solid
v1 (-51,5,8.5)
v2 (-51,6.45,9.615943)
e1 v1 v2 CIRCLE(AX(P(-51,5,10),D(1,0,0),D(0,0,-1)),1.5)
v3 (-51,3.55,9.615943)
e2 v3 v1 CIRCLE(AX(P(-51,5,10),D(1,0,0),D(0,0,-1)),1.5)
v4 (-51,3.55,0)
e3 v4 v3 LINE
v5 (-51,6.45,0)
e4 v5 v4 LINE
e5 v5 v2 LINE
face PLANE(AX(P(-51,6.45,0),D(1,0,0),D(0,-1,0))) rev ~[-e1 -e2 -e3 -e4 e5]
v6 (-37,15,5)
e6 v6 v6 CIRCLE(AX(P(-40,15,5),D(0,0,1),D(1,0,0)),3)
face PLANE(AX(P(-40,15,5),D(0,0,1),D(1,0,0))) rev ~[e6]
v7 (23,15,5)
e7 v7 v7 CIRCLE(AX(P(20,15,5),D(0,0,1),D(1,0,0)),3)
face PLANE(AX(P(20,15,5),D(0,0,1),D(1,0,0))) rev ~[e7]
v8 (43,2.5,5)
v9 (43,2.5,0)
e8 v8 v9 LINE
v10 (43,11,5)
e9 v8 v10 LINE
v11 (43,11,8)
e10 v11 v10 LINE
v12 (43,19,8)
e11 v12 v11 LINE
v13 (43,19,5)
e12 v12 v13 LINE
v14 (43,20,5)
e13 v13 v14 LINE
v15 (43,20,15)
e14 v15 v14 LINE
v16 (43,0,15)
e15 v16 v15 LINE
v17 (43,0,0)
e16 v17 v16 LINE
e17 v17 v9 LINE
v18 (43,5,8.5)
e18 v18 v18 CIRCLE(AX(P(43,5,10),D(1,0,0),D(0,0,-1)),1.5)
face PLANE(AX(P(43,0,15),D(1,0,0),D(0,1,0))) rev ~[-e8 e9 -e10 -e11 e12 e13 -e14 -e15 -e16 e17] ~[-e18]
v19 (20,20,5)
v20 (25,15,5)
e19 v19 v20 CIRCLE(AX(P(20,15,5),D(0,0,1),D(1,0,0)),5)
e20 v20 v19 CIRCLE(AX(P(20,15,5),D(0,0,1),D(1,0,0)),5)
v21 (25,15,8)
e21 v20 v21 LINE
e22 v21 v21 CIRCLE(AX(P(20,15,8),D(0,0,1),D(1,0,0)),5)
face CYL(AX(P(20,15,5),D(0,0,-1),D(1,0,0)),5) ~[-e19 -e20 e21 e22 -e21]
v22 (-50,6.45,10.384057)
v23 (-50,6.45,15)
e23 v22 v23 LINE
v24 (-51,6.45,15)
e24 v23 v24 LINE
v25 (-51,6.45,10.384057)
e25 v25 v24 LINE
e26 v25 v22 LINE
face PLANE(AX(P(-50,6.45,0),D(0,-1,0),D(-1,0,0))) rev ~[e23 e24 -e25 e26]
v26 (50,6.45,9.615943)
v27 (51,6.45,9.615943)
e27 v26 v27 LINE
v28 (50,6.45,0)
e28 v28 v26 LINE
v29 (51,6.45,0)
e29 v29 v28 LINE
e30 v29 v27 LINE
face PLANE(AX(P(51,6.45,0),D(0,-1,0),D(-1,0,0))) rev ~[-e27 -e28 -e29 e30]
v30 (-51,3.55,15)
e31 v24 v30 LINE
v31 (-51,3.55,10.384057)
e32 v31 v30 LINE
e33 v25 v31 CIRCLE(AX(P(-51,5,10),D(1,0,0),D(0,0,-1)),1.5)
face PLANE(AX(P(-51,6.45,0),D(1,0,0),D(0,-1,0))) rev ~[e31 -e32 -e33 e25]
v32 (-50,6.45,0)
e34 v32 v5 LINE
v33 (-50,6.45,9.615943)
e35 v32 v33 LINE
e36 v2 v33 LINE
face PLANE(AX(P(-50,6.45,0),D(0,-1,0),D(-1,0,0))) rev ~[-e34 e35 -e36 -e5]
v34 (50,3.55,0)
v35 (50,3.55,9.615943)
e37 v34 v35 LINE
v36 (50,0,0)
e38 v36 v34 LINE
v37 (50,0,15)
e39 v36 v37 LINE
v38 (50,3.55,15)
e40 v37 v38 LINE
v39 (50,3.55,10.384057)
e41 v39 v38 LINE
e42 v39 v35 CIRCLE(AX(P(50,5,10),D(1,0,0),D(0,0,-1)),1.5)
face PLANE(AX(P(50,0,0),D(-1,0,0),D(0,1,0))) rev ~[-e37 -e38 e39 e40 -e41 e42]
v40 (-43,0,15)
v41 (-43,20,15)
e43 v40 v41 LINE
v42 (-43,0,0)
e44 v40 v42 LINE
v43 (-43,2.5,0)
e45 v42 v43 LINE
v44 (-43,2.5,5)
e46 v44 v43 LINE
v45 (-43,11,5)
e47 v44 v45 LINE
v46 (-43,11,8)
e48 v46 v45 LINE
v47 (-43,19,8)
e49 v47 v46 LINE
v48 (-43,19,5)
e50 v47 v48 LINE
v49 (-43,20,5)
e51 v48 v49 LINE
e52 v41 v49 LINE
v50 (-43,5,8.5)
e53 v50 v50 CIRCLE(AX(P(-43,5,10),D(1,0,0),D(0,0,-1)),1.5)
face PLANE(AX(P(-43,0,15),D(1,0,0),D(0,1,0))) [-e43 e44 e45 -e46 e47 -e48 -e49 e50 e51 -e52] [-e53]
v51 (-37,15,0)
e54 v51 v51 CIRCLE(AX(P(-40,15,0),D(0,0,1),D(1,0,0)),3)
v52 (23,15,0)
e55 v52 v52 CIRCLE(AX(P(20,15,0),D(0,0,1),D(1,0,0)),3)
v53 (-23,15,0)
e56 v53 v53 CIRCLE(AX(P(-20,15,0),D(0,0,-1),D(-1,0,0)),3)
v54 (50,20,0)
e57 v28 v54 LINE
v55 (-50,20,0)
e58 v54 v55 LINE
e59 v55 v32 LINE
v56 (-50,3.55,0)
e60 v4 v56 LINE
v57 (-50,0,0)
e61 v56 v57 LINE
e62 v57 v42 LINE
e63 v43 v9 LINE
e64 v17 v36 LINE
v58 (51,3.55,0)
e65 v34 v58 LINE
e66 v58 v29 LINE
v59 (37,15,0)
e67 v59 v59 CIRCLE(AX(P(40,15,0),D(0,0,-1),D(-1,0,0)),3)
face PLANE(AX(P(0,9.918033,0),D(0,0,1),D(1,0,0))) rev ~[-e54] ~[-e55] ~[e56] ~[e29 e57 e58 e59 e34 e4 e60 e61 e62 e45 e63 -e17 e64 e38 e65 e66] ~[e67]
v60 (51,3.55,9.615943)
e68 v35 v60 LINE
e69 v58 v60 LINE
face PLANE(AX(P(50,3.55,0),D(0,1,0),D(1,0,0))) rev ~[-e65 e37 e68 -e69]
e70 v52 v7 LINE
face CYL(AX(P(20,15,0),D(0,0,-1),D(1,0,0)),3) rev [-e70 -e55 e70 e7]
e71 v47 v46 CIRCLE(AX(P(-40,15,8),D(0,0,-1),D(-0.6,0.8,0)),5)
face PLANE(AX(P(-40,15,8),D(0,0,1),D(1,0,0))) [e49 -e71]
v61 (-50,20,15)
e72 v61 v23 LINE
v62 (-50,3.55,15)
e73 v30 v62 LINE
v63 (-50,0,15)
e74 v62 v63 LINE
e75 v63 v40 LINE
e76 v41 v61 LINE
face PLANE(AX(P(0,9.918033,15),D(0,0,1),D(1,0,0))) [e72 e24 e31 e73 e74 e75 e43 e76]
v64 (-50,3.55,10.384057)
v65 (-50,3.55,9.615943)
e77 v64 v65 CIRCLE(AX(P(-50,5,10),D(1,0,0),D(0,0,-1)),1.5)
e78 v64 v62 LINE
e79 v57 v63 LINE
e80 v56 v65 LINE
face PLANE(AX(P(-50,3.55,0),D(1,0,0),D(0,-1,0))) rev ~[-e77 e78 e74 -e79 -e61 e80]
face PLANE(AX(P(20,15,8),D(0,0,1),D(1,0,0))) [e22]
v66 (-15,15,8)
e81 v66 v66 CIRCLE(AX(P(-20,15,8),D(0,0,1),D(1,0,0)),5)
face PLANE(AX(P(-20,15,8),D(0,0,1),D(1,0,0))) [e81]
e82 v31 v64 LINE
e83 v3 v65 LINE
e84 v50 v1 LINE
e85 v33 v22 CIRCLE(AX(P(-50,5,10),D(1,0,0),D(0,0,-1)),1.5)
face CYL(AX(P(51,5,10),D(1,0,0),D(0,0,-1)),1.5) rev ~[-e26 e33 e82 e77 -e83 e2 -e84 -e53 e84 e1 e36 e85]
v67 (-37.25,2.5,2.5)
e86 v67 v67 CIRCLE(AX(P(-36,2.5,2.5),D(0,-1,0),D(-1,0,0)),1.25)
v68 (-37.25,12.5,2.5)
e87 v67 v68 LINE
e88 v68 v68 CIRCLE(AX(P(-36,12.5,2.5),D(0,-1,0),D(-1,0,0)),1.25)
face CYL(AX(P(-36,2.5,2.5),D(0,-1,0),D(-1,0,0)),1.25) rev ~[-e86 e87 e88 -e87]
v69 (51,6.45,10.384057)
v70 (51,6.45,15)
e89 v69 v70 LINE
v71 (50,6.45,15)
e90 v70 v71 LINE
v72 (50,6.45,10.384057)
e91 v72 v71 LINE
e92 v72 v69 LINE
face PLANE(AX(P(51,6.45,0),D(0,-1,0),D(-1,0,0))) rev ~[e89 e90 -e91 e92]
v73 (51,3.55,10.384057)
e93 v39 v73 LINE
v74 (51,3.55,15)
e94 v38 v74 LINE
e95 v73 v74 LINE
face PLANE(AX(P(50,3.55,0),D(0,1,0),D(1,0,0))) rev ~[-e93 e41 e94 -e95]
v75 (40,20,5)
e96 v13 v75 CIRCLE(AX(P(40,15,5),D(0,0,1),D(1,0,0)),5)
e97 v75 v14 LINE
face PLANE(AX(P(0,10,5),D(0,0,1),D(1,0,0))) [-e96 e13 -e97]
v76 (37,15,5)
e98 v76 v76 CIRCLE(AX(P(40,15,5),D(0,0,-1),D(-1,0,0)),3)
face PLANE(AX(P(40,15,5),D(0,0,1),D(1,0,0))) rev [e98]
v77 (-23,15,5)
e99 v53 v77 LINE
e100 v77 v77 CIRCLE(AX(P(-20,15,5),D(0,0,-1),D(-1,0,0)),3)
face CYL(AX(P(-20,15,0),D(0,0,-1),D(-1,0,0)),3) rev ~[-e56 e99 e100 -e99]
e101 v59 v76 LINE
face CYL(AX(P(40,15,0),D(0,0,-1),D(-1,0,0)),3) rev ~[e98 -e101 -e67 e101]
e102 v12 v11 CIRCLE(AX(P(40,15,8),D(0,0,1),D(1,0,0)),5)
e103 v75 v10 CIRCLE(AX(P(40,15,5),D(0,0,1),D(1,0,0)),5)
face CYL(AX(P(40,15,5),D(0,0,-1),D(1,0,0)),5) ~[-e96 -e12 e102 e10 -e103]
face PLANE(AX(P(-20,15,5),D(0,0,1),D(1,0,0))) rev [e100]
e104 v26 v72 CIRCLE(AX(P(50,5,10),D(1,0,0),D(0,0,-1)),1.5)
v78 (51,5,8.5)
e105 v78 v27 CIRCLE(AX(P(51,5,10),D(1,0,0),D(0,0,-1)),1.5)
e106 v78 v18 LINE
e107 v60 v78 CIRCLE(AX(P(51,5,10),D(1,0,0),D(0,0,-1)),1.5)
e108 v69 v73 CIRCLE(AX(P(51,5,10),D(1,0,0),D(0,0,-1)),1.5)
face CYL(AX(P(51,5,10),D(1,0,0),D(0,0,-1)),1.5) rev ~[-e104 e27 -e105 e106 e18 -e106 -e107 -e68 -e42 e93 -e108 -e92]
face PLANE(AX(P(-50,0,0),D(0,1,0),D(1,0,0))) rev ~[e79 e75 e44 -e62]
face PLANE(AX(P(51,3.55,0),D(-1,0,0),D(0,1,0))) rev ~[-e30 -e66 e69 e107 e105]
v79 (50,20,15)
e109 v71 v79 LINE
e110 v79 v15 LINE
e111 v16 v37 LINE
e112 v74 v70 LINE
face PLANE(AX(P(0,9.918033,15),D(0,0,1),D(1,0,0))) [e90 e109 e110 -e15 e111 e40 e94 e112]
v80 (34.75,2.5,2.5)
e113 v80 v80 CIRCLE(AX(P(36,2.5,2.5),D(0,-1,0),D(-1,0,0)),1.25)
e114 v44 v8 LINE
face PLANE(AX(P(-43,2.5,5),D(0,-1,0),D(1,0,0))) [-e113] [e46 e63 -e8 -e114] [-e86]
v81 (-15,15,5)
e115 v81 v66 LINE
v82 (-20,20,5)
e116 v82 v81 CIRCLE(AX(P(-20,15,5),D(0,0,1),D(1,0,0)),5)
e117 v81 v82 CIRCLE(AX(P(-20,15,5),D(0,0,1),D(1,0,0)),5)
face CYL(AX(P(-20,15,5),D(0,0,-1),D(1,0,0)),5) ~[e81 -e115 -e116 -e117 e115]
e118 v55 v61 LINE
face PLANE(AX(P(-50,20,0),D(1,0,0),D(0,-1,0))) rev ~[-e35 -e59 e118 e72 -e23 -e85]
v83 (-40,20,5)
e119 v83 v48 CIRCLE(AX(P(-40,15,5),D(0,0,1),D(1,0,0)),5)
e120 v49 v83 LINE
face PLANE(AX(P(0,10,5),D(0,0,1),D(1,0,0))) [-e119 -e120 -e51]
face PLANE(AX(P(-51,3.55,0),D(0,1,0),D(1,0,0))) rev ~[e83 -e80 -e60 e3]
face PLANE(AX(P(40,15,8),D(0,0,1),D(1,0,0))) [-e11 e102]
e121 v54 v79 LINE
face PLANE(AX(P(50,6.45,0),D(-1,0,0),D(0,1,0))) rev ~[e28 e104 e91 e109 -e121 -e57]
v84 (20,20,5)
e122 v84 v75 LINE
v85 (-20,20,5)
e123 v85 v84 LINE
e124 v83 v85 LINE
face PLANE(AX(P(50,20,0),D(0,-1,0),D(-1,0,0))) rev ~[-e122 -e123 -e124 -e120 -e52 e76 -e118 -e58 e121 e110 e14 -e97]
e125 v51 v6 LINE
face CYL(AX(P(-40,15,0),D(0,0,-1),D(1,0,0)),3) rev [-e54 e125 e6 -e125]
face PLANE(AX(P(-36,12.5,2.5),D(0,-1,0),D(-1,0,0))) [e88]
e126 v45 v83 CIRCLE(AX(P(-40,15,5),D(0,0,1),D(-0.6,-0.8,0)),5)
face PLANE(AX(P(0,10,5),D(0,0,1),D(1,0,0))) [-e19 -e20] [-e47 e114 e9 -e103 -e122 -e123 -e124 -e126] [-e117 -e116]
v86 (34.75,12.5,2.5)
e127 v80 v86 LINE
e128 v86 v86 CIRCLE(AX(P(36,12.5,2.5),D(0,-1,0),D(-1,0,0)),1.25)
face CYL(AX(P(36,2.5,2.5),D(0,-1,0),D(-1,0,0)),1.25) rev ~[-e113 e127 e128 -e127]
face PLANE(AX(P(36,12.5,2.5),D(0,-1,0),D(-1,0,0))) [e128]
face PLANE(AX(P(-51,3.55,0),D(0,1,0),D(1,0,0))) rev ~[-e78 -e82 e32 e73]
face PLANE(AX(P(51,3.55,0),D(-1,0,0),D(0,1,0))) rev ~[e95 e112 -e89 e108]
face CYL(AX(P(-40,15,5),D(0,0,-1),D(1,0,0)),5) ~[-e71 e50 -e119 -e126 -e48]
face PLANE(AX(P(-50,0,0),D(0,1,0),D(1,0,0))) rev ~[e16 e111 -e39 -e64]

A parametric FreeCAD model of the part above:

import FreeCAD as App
import Part
import Sketcher
from FreeCAD import Vector

doc = App.newDocument("Part")
body = doc.addObject("PartDesign::Body", "Body")

# Sketch on XY plane
sketch1 = body.newObject("Sketcher::SketchObject", "Sketch")
sketch1.AttachmentSupport = (doc.getObject("XY_Plane"), [""])
sketch1.MapMode = "FlatFace"
sketch1.addGeometry(Part.LineSegment(Vector(-50, 0, 0), Vector(50, 0, 0)), False)
sketch1.addGeometry(Part.LineSegment(Vector(50, 0, 0), Vector(50, 3.55, 0)), False)
sketch1.addGeometry(Part.LineSegment(Vector(50, 3.55, 0), Vector(51, 3.55, 0)), False)
sketch1.addGeometry(Part.LineSegment(Vector(51, 3.55, 0), Vector(51, 6.45, 0)), False)
sketch1.addGeometry(Part.LineSegment(Vector(51, 6.45, 0), Vector(50, 6.45, 0)), False)
sketch1.addGeometry(Part.LineSegment(Vector(50, 6.45, 0), Vector(50, 20, 0)), False)
sketch1.addGeometry(Part.LineSegment(Vector(50, 20, 0), Vector(-50, 20, 0)), False)
sketch1.addGeometry(Part.LineSegment(Vector(-50, 20, 0), Vector(-50, 6.45, 0)), False)
sketch1.addGeometry(Part.LineSegment(Vector(-50, 6.45, 0), Vector(-51, 6.45, 0)), False)
sketch1.addGeometry(Part.LineSegment(Vector(-51, 6.45, 0), Vector(-51, 3.55, 0)), False)
sketch1.addGeometry(Part.LineSegment(Vector(-51, 3.55, 0), Vector(-50, 3.55, 0)), False)
sketch1.addGeometry(Part.LineSegment(Vector(-50, 3.55, 0), Vector(-50, 0, 0)), False)
sketch1.addConstraint(Sketcher.Constraint("Coincident", 0, 2, 1, 1))
sketch1.addConstraint(Sketcher.Constraint("Coincident", 1, 2, 2, 1))
sketch1.addConstraint(Sketcher.Constraint("Coincident", 2, 2, 3, 1))
sketch1.addConstraint(Sketcher.Constraint("Coincident", 3, 2, 4, 1))
sketch1.addConstraint(Sketcher.Constraint("Coincident", 4, 2, 5, 1))
sketch1.addConstraint(Sketcher.Constraint("Coincident", 5, 2, 6, 1))
sketch1.addConstraint(Sketcher.Constraint("Coincident", 6, 2, 7, 1))
sketch1.addConstraint(Sketcher.Constraint("Coincident", 7, 2, 8, 1))
sketch1.addConstraint(Sketcher.Constraint("Coincident", 8, 2, 9, 1))
sketch1.addConstraint(Sketcher.Constraint("Coincident", 9, 2, 10, 1))
sketch1.addConstraint(Sketcher.Constraint("Coincident", 10, 2, 11, 1))
sketch1.addConstraint(Sketcher.Constraint("Coincident", 11, 2, 0, 1))
sketch1.addConstraint(Sketcher.Constraint("Horizontal", 0))
sketch1.addConstraint(Sketcher.Constraint("Vertical", 1))
sketch1.addConstraint(Sketcher.Constraint("Horizontal", 2))
sketch1.addConstraint(Sketcher.Constraint("Vertical", 3))
sketch1.addConstraint(Sketcher.Constraint("Horizontal", 4))
sketch1.addConstraint(Sketcher.Constraint("Vertical", 5))
sketch1.addConstraint(Sketcher.Constraint("Horizontal", 6))
sketch1.addConstraint(Sketcher.Constraint("Vertical", 7))
sketch1.addConstraint(Sketcher.Constraint("Horizontal", 8))
sketch1.addConstraint(Sketcher.Constraint("Vertical", 9))
sketch1.addConstraint(Sketcher.Constraint("Horizontal", 10))
sketch1.addConstraint(Sketcher.Constraint("Vertical", 11))
sketch1.addConstraint(Sketcher.Constraint("Symmetric", 0, 2, 11, 2, -1, 1))
sketch1.addConstraint(Sketcher.Constraint("Symmetric", 4, 2, 7, 2, -2))
sketch1.addConstraint(Sketcher.Constraint("Symmetric", 2, 2, 9, 2, -2))
sketch1.addConstraint(Sketcher.Constraint("Vertical", 1, 2, 4, 2))
sketch1.addConstraint(Sketcher.Constraint("DistanceX", 0, 1, 0, 2, 100.0))
sketch1.addConstraint(Sketcher.Constraint("DistanceX", 2, 1, 2, 2, 1.0))
sketch1.addConstraint(Sketcher.Constraint("DistanceY", 3, 1, 3, 2, 2.9))
sketch1.addConstraint(Sketcher.Constraint("DistanceY", -1, 1, 5, 2, 20.0))
sketch1.addConstraint(Sketcher.Constraint("DistanceY", 1, 1, 1, 2, 3.55))
pad1 = body.newObject("PartDesign::Pad", "Pad")
pad1.Profile = sketch1
pad1.Length = 15

# Sketch on XY plane
sketch2 = body.newObject("Sketcher::SketchObject", "Sketch001")
sketch2.AttachmentSupport = (doc.getObject("XY_Plane"), [""])
sketch2.MapMode = "FlatFace"
sketch2.AttachmentOffset = App.Placement(Vector(0, 0, 15), App.Rotation())
sketch2.addGeometry(Part.LineSegment(Vector(-43, 20, 0), Vector(-43, 0, 0)), False)
sketch2.addGeometry(Part.LineSegment(Vector(-43, 0, 0), Vector(43, 0, 0)), False)
sketch2.addGeometry(Part.LineSegment(Vector(43, 0, 0), Vector(43, 20, 0)), False)
sketch2.addGeometry(Part.LineSegment(Vector(43, 20, 0), Vector(-43, 20, 0)), False)
sketch2.addConstraint(Sketcher.Constraint("Coincident", 0, 2, 1, 1))
sketch2.addConstraint(Sketcher.Constraint("Coincident", 1, 2, 2, 1))
sketch2.addConstraint(Sketcher.Constraint("Coincident", 2, 2, 3, 1))
sketch2.addConstraint(Sketcher.Constraint("Coincident", 3, 2, 0, 1))
sketch2.addConstraint(Sketcher.Constraint("Vertical", 0))
sketch2.addConstraint(Sketcher.Constraint("Horizontal", 1))
sketch2.addConstraint(Sketcher.Constraint("Vertical", 2))
sketch2.addConstraint(Sketcher.Constraint("Horizontal", 3))
sketch2.addConstraint(Sketcher.Constraint("Symmetric", 0, 2, 1, 2, -1, 1))
sketch2.addConstraint(Sketcher.Constraint("DistanceX", 1, 1, 1, 2, 86.0))
sketch2.addConstraint(Sketcher.Constraint("DistanceY", 0, 2, 0, 1, 20.0))
pocket1 = body.newObject("PartDesign::Pocket", "Pocket")
pocket1.Profile = sketch2
pocket1.Length = 10

# Sketch on XY plane
sketch3 = body.newObject("Sketcher::SketchObject", "Sketch002")
sketch3.AttachmentSupport = (doc.getObject("XY_Plane"), [""])
sketch3.MapMode = "FlatFace"
sketch3.AttachmentOffset = App.Placement(Vector(0, 0, 5), App.Rotation())
sketch3.addGeometry(Part.Circle(Vector(-40, 15, 0), Vector(0, 0, 1), 5), False)
sketch3.addGeometry(Part.Circle(Vector(-20, 15, 0), Vector(0, 0, 1), 5), False)
sketch3.addGeometry(Part.Circle(Vector(20, 15, 0), Vector(0, 0, 1), 5), False)
sketch3.addGeometry(Part.Circle(Vector(40, 15, 0), Vector(0, 0, 1), 5), False)
sketch3.addConstraint(Sketcher.Constraint("Equal", 0, 1))
sketch3.addConstraint(Sketcher.Constraint("Equal", 1, 2))
sketch3.addConstraint(Sketcher.Constraint("Equal", 2, 3))
sketch3.addConstraint(Sketcher.Constraint("Symmetric", 1, 3, 2, 3, -2))
sketch3.addConstraint(Sketcher.Constraint("Symmetric", 0, 3, 3, 3, -2))
sketch3.addConstraint(Sketcher.Constraint("Horizontal", 0, 3, 1, 3))
sketch3.addConstraint(Sketcher.Constraint("Diameter", 0, 10.0))
sketch3.addConstraint(Sketcher.Constraint("DistanceX", 0, 3, -1, 1, 40.0))
sketch3.addConstraint(Sketcher.Constraint("DistanceY", -1, 1, 0, 3, 15.0))
sketch3.addConstraint(Sketcher.Constraint("DistanceX", 1, 3, -1, 1, 20.0))
pad2 = body.newObject("PartDesign::Pad", "Pad001")
pad2.Profile = sketch3
pad2.Length = 3

# Sketch on XY plane
sketch4 = body.newObject("Sketcher::SketchObject", "Sketch003")
sketch4.AttachmentSupport = (doc.getObject("XY_Plane"), [""])
sketch4.MapMode = "FlatFace"
sketch4.addGeometry(Part.Circle(Vector(-40, 15, 0), Vector(0, 0, 1), 3), False)
sketch4.addGeometry(Part.Circle(Vector(20, 15, 0), Vector(0, 0, 1), 3), False)
sketch4.addConstraint(Sketcher.Constraint("Equal", 0, 1))
sketch4.addConstraint(Sketcher.Constraint("Horizontal", 0, 3, 1, 3))
sketch4.addConstraint(Sketcher.Constraint("Diameter", 0, 6.0))
sketch4.addConstraint(Sketcher.Constraint("DistanceX", 0, 3, -1, 1, 40.0))
sketch4.addConstraint(Sketcher.Constraint("DistanceY", -1, 1, 0, 3, 15.0))
sketch4.addConstraint(Sketcher.Constraint("DistanceX", -1, 1, 1, 3, 20.0))
pocket2 = body.newObject("PartDesign::Pocket", "Pocket001")
pocket2.Profile = sketch4
pocket2.Length = 5
pocket2.Reversed = True
doc.recompute()

mirrored = body.newObject("PartDesign::Mirrored", "Mirrored")
mirrored.Originals = [pocket2]
mirrored.MirrorPlane = (doc.getObject("YZ_Plane"), [""])
body.Tip = mirrored

# Sketch on YZ plane
sketch5 = body.newObject("Sketcher::SketchObject", "Sketch004")
sketch5.AttachmentSupport = (doc.getObject("YZ_Plane"), [""])
sketch5.MapMode = "FlatFace"
sketch5.AttachmentOffset = App.Placement(Vector(0, 0, 51), App.Rotation())
sketch5.addGeometry(Part.Circle(Vector(5, 10, 0), Vector(0, 0, 1), 1.5), False)
sketch5.addConstraint(Sketcher.Constraint("Diameter", 0, 3.0))
sketch5.addConstraint(Sketcher.Constraint("DistanceX", -1, 1, 0, 3, 5.0))
sketch5.addConstraint(Sketcher.Constraint("DistanceY", -1, 1, 0, 3, 10.0))
pocket3 = body.newObject("PartDesign::Pocket", "Pocket002")
pocket3.Profile = sketch5
pocket3.Type = "ThroughAll"

# Sketch on XY plane
sketch6 = body.newObject("Sketcher::SketchObject", "Sketch005")
sketch6.AttachmentSupport = (doc.getObject("XY_Plane"), [""])
sketch6.MapMode = "FlatFace"
sketch6.AttachmentOffset = App.Placement(Vector(0, 0, 5), App.Rotation())
sketch6.addGeometry(Part.LineSegment(Vector(-43, 2.5, 0), Vector(-43, 0, 0)), False)
sketch6.addGeometry(Part.LineSegment(Vector(-43, 0, 0), Vector(43, 0, 0)), False)
sketch6.addGeometry(Part.LineSegment(Vector(43, 0, 0), Vector(43, 2.5, 0)), False)
sketch6.addGeometry(Part.LineSegment(Vector(43, 2.5, 0), Vector(-43, 2.5, 0)), False)
sketch6.addConstraint(Sketcher.Constraint("Coincident", 0, 2, 1, 1))
sketch6.addConstraint(Sketcher.Constraint("Coincident", 1, 2, 2, 1))
sketch6.addConstraint(Sketcher.Constraint("Coincident", 2, 2, 3, 1))
sketch6.addConstraint(Sketcher.Constraint("Coincident", 3, 2, 0, 1))
sketch6.addConstraint(Sketcher.Constraint("Vertical", 0))
sketch6.addConstraint(Sketcher.Constraint("Horizontal", 1))
sketch6.addConstraint(Sketcher.Constraint("Vertical", 2))
sketch6.addConstraint(Sketcher.Constraint("Horizontal", 3))
sketch6.addConstraint(Sketcher.Constraint("Symmetric", 0, 2, 1, 2, -1, 1))
sketch6.addConstraint(Sketcher.Constraint("DistanceX", 1, 1, 1, 2, 86.0))
sketch6.addConstraint(Sketcher.Constraint("DistanceY", 0, 2, 0, 1, 2.5))
pocket4 = body.newObject("PartDesign::Pocket", "Pocket003")
pocket4.Profile = sketch6
pocket4.Type = "ThroughAll"

# Sketch on XZ plane
sketch7 = body.newObject("Sketcher::SketchObject", "Sketch006")
sketch7.AttachmentSupport = (doc.getObject("XZ_Plane"), [""])
sketch7.MapMode = "FlatFace"
sketch7.AttachmentOffset = App.Placement(Vector(0, 0, -2.5), App.Rotation())
sketch7.addGeometry(Part.Circle(Vector(-36, 2.5, 0), Vector(0, 0, 1), 1.25), False)
sketch7.addGeometry(Part.Circle(Vector(36, 2.5, 0), Vector(0, 0, 1), 1.25), False)
sketch7.addConstraint(Sketcher.Constraint("Equal", 0, 1))
sketch7.addConstraint(Sketcher.Constraint("Symmetric", 0, 3, 1, 3, -2))
sketch7.addConstraint(Sketcher.Constraint("Diameter", 0, 2.5))
sketch7.addConstraint(Sketcher.Constraint("DistanceX", 0, 3, -1, 1, 36.0))
sketch7.addConstraint(Sketcher.Constraint("DistanceY", -1, 1, 0, 3, 2.5))
pocket5 = body.newObject("PartDesign::Pocket", "Pocket004")
pocket5.Profile = sketch7
pocket5.Length = 10

doc.recompute()
